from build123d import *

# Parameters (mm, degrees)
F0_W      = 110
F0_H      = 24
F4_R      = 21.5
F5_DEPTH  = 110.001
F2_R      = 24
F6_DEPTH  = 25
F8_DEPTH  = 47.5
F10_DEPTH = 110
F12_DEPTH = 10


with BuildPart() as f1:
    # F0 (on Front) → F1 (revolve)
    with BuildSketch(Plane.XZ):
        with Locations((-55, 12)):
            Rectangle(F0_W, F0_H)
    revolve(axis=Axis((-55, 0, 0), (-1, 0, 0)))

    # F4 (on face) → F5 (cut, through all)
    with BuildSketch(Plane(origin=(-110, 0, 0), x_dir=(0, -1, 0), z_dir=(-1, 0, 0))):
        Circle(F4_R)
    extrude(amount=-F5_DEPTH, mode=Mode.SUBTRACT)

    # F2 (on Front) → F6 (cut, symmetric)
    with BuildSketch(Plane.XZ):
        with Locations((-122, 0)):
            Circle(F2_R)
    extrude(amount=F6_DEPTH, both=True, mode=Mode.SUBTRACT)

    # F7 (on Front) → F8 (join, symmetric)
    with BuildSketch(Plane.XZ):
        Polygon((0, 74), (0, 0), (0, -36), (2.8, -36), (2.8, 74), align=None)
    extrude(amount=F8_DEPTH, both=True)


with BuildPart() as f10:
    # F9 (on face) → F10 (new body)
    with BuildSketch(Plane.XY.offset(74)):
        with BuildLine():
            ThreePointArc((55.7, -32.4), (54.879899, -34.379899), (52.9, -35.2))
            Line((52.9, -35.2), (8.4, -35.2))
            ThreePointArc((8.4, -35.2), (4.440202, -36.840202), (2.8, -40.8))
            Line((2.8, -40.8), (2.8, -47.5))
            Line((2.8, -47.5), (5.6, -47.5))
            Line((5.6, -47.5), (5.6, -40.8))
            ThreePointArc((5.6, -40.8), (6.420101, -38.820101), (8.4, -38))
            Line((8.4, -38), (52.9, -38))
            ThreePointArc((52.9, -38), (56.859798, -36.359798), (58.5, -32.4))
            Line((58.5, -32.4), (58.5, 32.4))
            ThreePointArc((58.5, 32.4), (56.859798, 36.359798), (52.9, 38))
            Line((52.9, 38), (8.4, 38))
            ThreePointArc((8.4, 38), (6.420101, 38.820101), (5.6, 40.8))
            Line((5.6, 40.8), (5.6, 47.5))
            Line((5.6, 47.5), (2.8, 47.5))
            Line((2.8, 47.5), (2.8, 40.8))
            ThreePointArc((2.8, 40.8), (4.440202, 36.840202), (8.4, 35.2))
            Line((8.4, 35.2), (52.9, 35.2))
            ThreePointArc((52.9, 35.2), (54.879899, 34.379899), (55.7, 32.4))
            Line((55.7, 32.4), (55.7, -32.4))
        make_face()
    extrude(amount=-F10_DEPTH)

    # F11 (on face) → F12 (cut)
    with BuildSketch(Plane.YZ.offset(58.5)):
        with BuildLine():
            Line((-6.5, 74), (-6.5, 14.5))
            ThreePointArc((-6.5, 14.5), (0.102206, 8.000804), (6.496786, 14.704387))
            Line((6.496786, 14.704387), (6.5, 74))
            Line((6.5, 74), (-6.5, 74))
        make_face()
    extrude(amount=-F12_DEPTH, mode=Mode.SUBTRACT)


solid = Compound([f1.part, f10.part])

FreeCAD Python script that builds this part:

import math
import FreeCAD as App
import Part
import Sketcher
Q = App.Units.Quantity

doc = App.newDocument("Part")
body = doc.addObject("PartDesign::Body", "Body")

# Sketch on XZ plane
sketch1 = doc.addObject("Sketcher::SketchObject", "Sketch")
body.addObject(sketch1)
sketch1.AttachmentSupport = (doc.XZ_Plane, [""])
sketch1.MapMode = "FlatFace"
sketch1.addGeometry(Part.LineSegment(App.Vector(-110, 24, 0), App.Vector(-110, 0, 0)), False)
sketch1.addGeometry(Part.LineSegment(App.Vector(-110, 0, 0), App.Vector(0, 0, 0)), False)
sketch1.addGeometry(Part.LineSegment(App.Vector(0, 0, 0), App.Vector(0, 24, 0)), False)
sketch1.addGeometry(Part.LineSegment(App.Vector(0, 24, 0), App.Vector(-110, 24, 0)), False)
sketch1.addConstraint(Sketcher.Constraint("Coincident", 0, 2, 1, 1))
sketch1.addConstraint(Sketcher.Constraint("Coincident", 1, 2, 2, 1))
sketch1.addConstraint(Sketcher.Constraint("Coincident", 2, 2, 3, 1))
sketch1.addConstraint(Sketcher.Constraint("Coincident", 3, 2, 0, 1))
sketch1.addConstraint(Sketcher.Constraint("Vertical", 0))
sketch1.addConstraint(Sketcher.Constraint("Horizontal", 1))
sketch1.addConstraint(Sketcher.Constraint("Vertical", 2))
sketch1.addConstraint(Sketcher.Constraint("Horizontal", 3))
sketch1.addConstraint(Sketcher.Constraint("Coincident", 1, 2, -1, 1))
sketch1.addConstraint(Sketcher.Constraint("DistanceX", 1, 1, 1, 2, Q("110 mm")))
sketch1.addConstraint(Sketcher.Constraint("DistanceY", 0, 2, 0, 1, Q("24 mm")))
revolution = doc.addObject("PartDesign::Revolution", "Revolution")
body.addObject(revolution)
revolution.Profile = sketch1
revolution.ReferenceAxis = (sketch1, ["H_Axis"])
revolution.Angle = 360

# Sketch on YZ plane
sketch2 = doc.addObject("Sketcher::SketchObject", "Sketch001")
body.addObject(sketch2)
sketch2.AttachmentSupport = (doc.YZ_Plane, [""])
sketch2.MapMode = "FlatFace"
sketch2.AttachmentOffset = App.Placement(App.Vector(0, 0, -110), App.Rotation())
sketch2.addGeometry(Part.Circle(App.Vector(0, 0, 0), App.Vector(0, 0, 1), 21.5), False)
sketch2.addConstraint(Sketcher.Constraint("Coincident", 0, 3, -1, 1))
sketch2.addConstraint(Sketcher.Constraint("Diameter", 0, Q("43 mm")))
pocket1 = doc.addObject("PartDesign::Pocket", "Pocket")
body.addObject(pocket1)
pocket1.Profile = sketch2
pocket1.Type = "ThroughAll"
pocket1.Reversed = True

# Sketch on XZ plane
sketch3 = doc.addObject("Sketcher::SketchObject", "Sketch002")
body.addObject(sketch3)
sketch3.AttachmentSupport = (doc.XZ_Plane, [""])
sketch3.MapMode = "FlatFace"
sketch3.addGeometry(Part.Circle(App.Vector(-122, 0, 0), App.Vector(0, 0, 1), 24), False)
sketch3.addConstraint(Sketcher.Constraint("PointOnObject", 0, 3, -1))
sketch3.addConstraint(Sketcher.Constraint("Diameter", 0, Q("48 mm")))
sketch3.addConstraint(Sketcher.Constraint("DistanceX", 0, 3, -1, 1, Q("122 mm")))
pocket2 = doc.addObject("PartDesign::Pocket", "Pocket001")
body.addObject(pocket2)
pocket2.Profile = sketch3
pocket2.Length = 50
pocket2.Midplane = True

# Sketch on XZ plane
sketch4 = doc.addObject("Sketcher::SketchObject", "Sketch003")
body.addObject(sketch4)
sketch4.AttachmentSupport = (doc.XZ_Plane, [""])
sketch4.MapMode = "FlatFace"
sketch4.addGeometry(Part.LineSegment(App.Vector(0, 74, 0), App.Vector(0, -36, 0)), False)
sketch4.addGeometry(Part.LineSegment(App.Vector(0, -36, 0), App.Vector(2.8, -36, 0)), False)
sketch4.addGeometry(Part.LineSegment(App.Vector(2.8, -36, 0), App.Vector(2.8, 74, 0)), False)
sketch4.addGeometry(Part.LineSegment(App.Vector(2.8, 74, 0), App.Vector(0, 74, 0)), False)
sketch4.addConstraint(Sketcher.Constraint("Coincident", 0, 2, 1, 1))
sketch4.addConstraint(Sketcher.Constraint("Coincident", 1, 2, 2, 1))
sketch4.addConstraint(Sketcher.Constraint("Coincident", 2, 2, 3, 1))
sketch4.addConstraint(Sketcher.Constraint("Coincident", 3, 2, 0, 1))
sketch4.addConstraint(Sketcher.Constraint("Vertical", 0))
sketch4.addConstraint(Sketcher.Constraint("Horizontal", 1))
sketch4.addConstraint(Sketcher.Constraint("Vertical", 2))
sketch4.addConstraint(Sketcher.Constraint("Horizontal", 3))
sketch4.addConstraint(Sketcher.Constraint("PointOnObject", 0, 2, -2))
sketch4.addConstraint(Sketcher.Constraint("DistanceY", 0, 2, 0, 1, Q("110 mm")))
sketch4.addConstraint(Sketcher.Constraint("DistanceX", 1, 1, 1, 2, Q("2.8 mm")))
sketch4.addConstraint(Sketcher.Constraint("DistanceY", 0, 2, -1, 1, Q("36 mm")))
pad1 = doc.addObject("PartDesign::Pad", "Pad")
body.addObject(pad1)
pad1.Profile = sketch4
pad1.Length = 95
pad1.Midplane = True
body2 = doc.addObject("PartDesign::Body", "Body001")

# Sketch on XY plane
sketch5 = doc.addObject("Sketcher::SketchObject", "Sketch004")
body2.addObject(sketch5)
sketch5.AttachmentSupport = (doc.getObject("XY_Plane001"), [""])
sketch5.MapMode = "FlatFace"
sketch5.AttachmentOffset = App.Placement(App.Vector(0, 0, 74), App.Rotation())
sketch5.addGeometry(Part.ArcOfCircle(Part.Circle(App.Vector(52.9, -32.4, 0), App.Vector(0, 0, 1), 2.8), math.radians(-90.000001), math.radians(0.000001)), False)
sketch5.addGeometry(Part.LineSegment(App.Vector(52.9, -35.2, 0), App.Vector(8.4, -35.2, 0)), False)
sketch5.addGeometry(Part.ArcOfCircle(Part.Circle(App.Vector(8.4, -40.8, 0), App.Vector(0, 0, 1), 5.6), math.radians(89.999999), math.radians(180.000001)), False)
sketch5.addGeometry(Part.LineSegment(App.Vector(2.8, -40.8, 0), App.Vector(2.8, -47.5, 0)), False)
sketch5.addGeometry(Part.LineSegment(App.Vector(2.8, -47.5, 0), App.Vector(5.6, -47.5, 0)), False)
sketch5.addGeometry(Part.LineSegment(App.Vector(5.6, -47.5, 0), App.Vector(5.6, -40.8, 0)), False)
sketch5.addGeometry(Part.ArcOfCircle(Part.Circle(App.Vector(8.4, -40.8, 0), App.Vector(0, 0, 1), 2.8), math.radians(89.999999), math.radians(180.000001)), False)
sketch5.addGeometry(Part.LineSegment(App.Vector(8.4, -38, 0), App.Vector(52.9, -38, 0)), False)
sketch5.addGeometry(Part.ArcOfCircle(Part.Circle(App.Vector(52.9, -32.4, 0), App.Vector(0, 0, 1), 5.6), math.radians(-90.000001), math.radians(0.000001)), False)
sketch5.addGeometry(Part.LineSegment(App.Vector(58.5, -32.4, 0), App.Vector(58.5, 32.4, 0)), False)
sketch5.addGeometry(Part.ArcOfCircle(Part.Circle(App.Vector(52.9, 32.4, 0), App.Vector(0, 0, 1), 5.6), math.radians(-0.000001), math.radians(90.000001)), False)
sketch5.addGeometry(Part.LineSegment(App.Vector(52.9, 38, 0), App.Vector(8.4, 38, 0)), False)
sketch5.addGeometry(Part.ArcOfCircle(Part.Circle(App.Vector(8.4, 40.8, 0), App.Vector(0, 0, 1), 2.8), math.radians(179.999999), math.radians(270.000001)), False)
sketch5.addGeometry(Part.LineSegment(App.Vector(5.6, 40.8, 0), App.Vector(5.6, 47.5, 0)), False)
sketch5.addGeometry(Part.LineSegment(App.Vector(5.6, 47.5, 0), App.Vector(2.8, 47.5, 0)), False)
sketch5.addGeometry(Part.LineSegment(App.Vector(2.8, 47.5, 0), App.Vector(2.8, 40.8, 0)), False)
sketch5.addGeometry(Part.ArcOfCircle(Part.Circle(App.Vector(8.4, 40.8, 0), App.Vector(0, 0, 1), 5.6), math.radians(179.999999), math.radians(270.000001)), False)
sketch5.addGeometry(Part.LineSegment(App.Vector(8.4, 35.2, 0), App.Vector(52.9, 35.2, 0)), False)
sketch5.addGeometry(Part.ArcOfCircle(Part.Circle(App.Vector(52.9, 32.4, 0), App.Vector(0, 0, 1), 2.8), math.radians(-0.000001), math.radians(90.000001)), False)
sketch5.addGeometry(Part.LineSegment(App.Vector(55.7, 32.4, 0), App.Vector(55.7, -32.4, 0)), False)
sketch5.addConstraint(Sketcher.Constraint("Tangent", 0, 1, 1, 1))
sketch5.addConstraint(Sketcher.Constraint("Tangent", 1, 2, 2, 1))
sketch5.addConstraint(Sketcher.Constraint("Tangent", 2, 2, 3, 1))
sketch5.addConstraint(Sketcher.Constraint("Coincident", 3, 2, 4, 1))
sketch5.addConstraint(Sketcher.Constraint("Coincident", 4, 2, 5, 1))
sketch5.addConstraint(Sketcher.Constraint("Tangent", 5, 2, 6, 2))
sketch5.addConstraint(Sketcher.Constraint("Tangent", 6, 1, 7, 1))
sketch5.addConstraint(Sketcher.Constraint("Tangent", 7, 2, 8, 1))
sketch5.addConstraint(Sketcher.Constraint("Tangent", 8, 2, 9, 1))
sketch5.addConstraint(Sketcher.Constraint("Tangent", 9, 2, 10, 1))
sketch5.addConstraint(Sketcher.Constraint("Tangent", 10, 2, 11, 1))
sketch5.addConstraint(Sketcher.Constraint("Tangent", 11, 2, 12, 2))
sketch5.addConstraint(Sketcher.Constraint("Tangent", 12, 1, 13, 1))
sketch5.addConstraint(Sketcher.Constraint("Coincident", 13, 2, 14, 1))
sketch5.addConstraint(Sketcher.Constraint("Coincident", 14, 2, 15, 1))
sketch5.addConstraint(Sketcher.Constraint("Tangent", 15, 2, 16, 1))
sketch5.addConstraint(Sketcher.Constraint("Tangent", 16, 2, 17, 1))
sketch5.addConstraint(Sketcher.Constraint("Tangent", 17, 2, 18, 2))
sketch5.addConstraint(Sketcher.Constraint("Tangent", 18, 1, 19, 1))
sketch5.addConstraint(Sketcher.Constraint("Tangent", 19, 2, 0, 2))
sketch5.addConstraint(Sketcher.Constraint("Horizontal", 1))
sketch5.addConstraint(Sketcher.Constraint("Vertical", 3))
sketch5.addConstraint(Sketcher.Constraint("Horizontal", 4))
sketch5.addConstraint(Sketcher.Constraint("Vertical", 5))
sketch5.addConstraint(Sketcher.Constraint("Horizontal", 7))
sketch5.addConstraint(Sketcher.Constraint("Vertical", 9))
sketch5.addConstraint(Sketcher.Constraint("Horizontal", 11))
sketch5.addConstraint(Sketcher.Constraint("Vertical", 13))
sketch5.addConstraint(Sketcher.Constraint("Horizontal", 14))
sketch5.addConstraint(Sketcher.Constraint("Vertical", 15))
sketch5.addConstraint(Sketcher.Constraint("Horizontal", 17))
sketch5.addConstraint(Sketcher.Constraint("Vertical", 19))
sketch5.addConstraint(Sketcher.Constraint("Coincident", 6, 3, 2, 3))
sketch5.addConstraint(Sketcher.Constraint("Coincident", 8, 3, 0, 3))
sketch5.addConstraint(Sketcher.Constraint("Coincident", 16, 3, 12, 3))
sketch5.addConstraint(Sketcher.Constraint("Coincident", 18, 3, 10, 3))
sketch5.addConstraint(Sketcher.Constraint("Equal", 0, 6))
sketch5.addConstraint(Sketcher.Constraint("Equal", 8, 10))
sketch5.addConstraint(Sketcher.Constraint("Equal", 6, 12))
sketch5.addConstraint(Sketcher.Constraint("Symmetric", 2, 3, 12, 3, -1))
sketch5.addConstraint(Sketcher.Constraint("Equal", 5, 13))
sketch5.addConstraint(Sketcher.Constraint("Radius", 0, Q("2.8 mm")))
sketch5.addConstraint(Sketcher.Constraint("Radius", 2, Q("5.6 mm")))
sketch5.addConstraint(Sketcher.Constraint("DistanceX", 1, 2, 1, 1, Q("44.5 mm")))
sketch5.addConstraint(Sketcher.Constraint("DistanceY", 3, 2, 3, 1, Q("6.7 mm")))
sketch5.addConstraint(Sketcher.Constraint("DistanceY", 9, 1, 9, 2, Q("64.8 mm")))
sketch5.addConstraint(Sketcher.Constraint("DistanceX", -1, 1, 0, 3, Q("52.9 mm")))
pad2 = doc.addObject("PartDesign::Pad", "Pad001")
body2.addObject(pad2)
pad2.Profile = sketch5
pad2.Length = 110
pad2.Reversed = True

# Sketch on YZ plane
sketch6 = doc.addObject("Sketcher::SketchObject", "Sketch005")
body2.addObject(sketch6)
sketch6.AttachmentSupport = (doc.getObject("YZ_Plane001"), [""])
sketch6.MapMode = "FlatFace"
sketch6.AttachmentOffset = App.Placement(App.Vector(0, 0, 58.5), App.Rotation())
sketch6.addGeometry(Part.LineSegment(App.Vector(-6.5, 74, 0), App.Vector(-6.5, 14.5, 0)), False)
sketch6.addGeometry(Part.ArcOfCircle(Part.Circle(App.Vector(0, 14.5, 0), App.Vector(0, 0, 1), 6.5), math.radians(-179.999996), math.radians(1.80191)), False)
sketch6.addGeometry(Part.LineSegment(App.Vector(6.496786, 14.704387, 0), App.Vector(6.5, 74, 0)), False)
sketch6.addGeometry(Part.LineSegment(App.Vector(6.5, 74, 0), App.Vector(-6.5, 74, 0)), False)
sketch6.addConstraint(Sketcher.Constraint("Tangent", 0, 2, 1, 1))
sketch6.addConstraint(Sketcher.Constraint("Coincident", 1, 2, 2, 1))
sketch6.addConstraint(Sketcher.Constraint("Coincident", 2, 2, 3, 1))
sketch6.addConstraint(Sketcher.Constraint("Coincident", 3, 2, 0, 1))
sketch6.addConstraint(Sketcher.Constraint("Vertical", 0))
sketch6.addConstraint(Sketcher.Constraint("Horizontal", 3))
sketch6.addConstraint(Sketcher.Constraint("PointOnObject", 1, 3, -2))
sketch6.addConstraint(Sketcher.Constraint("Radius", 1, Q("6.5 mm")))
sketch6.addConstraint(Sketcher.Constraint("DistanceX", 3, 2, 3, 1, Q("13 mm")))
sketch6.addConstraint(Sketcher.Constraint("DistanceY", 0, 2, 0, 1, Q("59.5 mm")))
sketch6.addConstraint(Sketcher.Constraint("DistanceY", -1, 1, 2, 2, Q("74 mm")))
sketch6.addConstraint(Sketcher.Constraint("Distance", 2, Q("59.295613 mm")))
pocket3 = doc.addObject("PartDesign::Pocket", "Pocket002")
body2.addObject(pocket3)
pocket3.Profile = sketch6
pocket3.Length = 10

doc.recompute()
